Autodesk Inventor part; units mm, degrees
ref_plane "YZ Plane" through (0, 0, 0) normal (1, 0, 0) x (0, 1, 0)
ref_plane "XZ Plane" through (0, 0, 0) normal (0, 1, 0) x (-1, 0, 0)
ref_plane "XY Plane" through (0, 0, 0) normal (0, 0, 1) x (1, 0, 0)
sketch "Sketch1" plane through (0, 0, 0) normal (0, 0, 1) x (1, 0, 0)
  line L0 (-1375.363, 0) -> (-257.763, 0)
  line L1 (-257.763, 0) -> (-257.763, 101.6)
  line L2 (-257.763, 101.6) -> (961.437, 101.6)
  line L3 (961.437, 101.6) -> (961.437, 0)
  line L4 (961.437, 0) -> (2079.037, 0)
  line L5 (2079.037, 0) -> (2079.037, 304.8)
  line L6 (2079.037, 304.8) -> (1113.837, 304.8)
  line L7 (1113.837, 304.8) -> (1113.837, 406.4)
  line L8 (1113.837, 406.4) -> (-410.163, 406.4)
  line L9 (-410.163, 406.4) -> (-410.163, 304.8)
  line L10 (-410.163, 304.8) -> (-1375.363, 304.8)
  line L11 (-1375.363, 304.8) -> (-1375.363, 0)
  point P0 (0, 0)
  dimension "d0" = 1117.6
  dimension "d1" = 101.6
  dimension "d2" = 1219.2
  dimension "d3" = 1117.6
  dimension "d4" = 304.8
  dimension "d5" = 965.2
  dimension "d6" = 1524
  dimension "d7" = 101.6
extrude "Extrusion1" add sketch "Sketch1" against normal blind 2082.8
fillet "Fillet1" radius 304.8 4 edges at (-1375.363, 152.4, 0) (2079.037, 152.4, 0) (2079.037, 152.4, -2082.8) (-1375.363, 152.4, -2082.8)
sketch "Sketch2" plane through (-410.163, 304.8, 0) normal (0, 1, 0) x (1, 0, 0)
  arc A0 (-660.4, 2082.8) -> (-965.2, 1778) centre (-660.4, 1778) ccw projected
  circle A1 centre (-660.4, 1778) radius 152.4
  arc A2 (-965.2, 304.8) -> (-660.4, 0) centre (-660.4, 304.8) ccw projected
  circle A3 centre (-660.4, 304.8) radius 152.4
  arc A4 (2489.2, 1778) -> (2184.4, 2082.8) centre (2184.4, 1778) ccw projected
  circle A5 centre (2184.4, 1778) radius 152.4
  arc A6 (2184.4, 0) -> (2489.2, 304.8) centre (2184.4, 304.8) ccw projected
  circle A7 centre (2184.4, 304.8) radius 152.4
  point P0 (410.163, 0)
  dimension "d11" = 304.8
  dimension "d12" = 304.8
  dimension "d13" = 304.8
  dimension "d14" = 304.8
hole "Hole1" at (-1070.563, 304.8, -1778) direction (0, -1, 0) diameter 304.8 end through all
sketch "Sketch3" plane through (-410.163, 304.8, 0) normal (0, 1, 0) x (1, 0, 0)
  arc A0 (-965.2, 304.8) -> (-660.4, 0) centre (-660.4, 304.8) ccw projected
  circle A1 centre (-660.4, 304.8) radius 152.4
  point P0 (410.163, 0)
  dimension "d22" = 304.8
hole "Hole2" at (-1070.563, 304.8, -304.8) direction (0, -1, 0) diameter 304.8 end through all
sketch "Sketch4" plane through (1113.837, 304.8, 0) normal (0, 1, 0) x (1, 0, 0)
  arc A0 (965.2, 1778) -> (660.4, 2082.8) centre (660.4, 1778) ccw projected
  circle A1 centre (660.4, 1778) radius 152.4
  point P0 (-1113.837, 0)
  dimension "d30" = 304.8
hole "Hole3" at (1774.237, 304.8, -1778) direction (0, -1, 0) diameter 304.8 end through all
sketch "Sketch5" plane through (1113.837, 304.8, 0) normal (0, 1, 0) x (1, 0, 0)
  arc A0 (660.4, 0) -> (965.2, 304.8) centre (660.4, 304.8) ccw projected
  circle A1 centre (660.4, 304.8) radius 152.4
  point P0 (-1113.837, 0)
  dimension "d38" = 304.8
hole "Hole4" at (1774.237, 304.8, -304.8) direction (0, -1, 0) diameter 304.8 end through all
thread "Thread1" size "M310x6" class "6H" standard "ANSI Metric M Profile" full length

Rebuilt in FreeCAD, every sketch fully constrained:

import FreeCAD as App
import Part
import Sketcher

V = App.Vector
Q = App.Units.Quantity


def edges_at(feature, points):
    """Names of the edges that pass closest to the given points."""
    edges = feature.Shape.Edges
    near = lambda p: min(range(len(edges)), key=lambda i: edges[i].distToShape(Part.Vertex(*p))[0])
    return sorted({f"Edge{near(p) + 1}" for p in points})


def add_polygon(sketch, points):
    """Adds a closed chain of lines whose ends are joined by coincident constraints."""
    first, n = sketch.GeometryCount, len(points)
    for a, b in zip(points, points[1:] + points[:1]):
        sketch.addGeometry(Part.LineSegment(App.Vector(*a, 0), App.Vector(*b, 0)), False)
    for i in range(n):
        sketch.addConstraint(Sketcher.Constraint("Coincident", first + i, 2, first + (i + 1) % n, 1))

doc = App.newDocument("Part")
body = doc.addObject("PartDesign::Body", "Body")

sketch1 = body.newObject("Sketcher::SketchObject", "Sketch")
sketch1.AttachmentSupport = (doc.getObject("XY_Plane"), [""])
sketch1.MapMode = "FlatFace"
add_polygon(sketch1, [(-1375, 305), (-1375, 0), (-258, 0), (-258, 102), (961, 102), (961, 0), (2079, 0), (2079, 305), (1114, 305), (1114, 406), (-410, 406), (-410, 305)])
sketch1.addConstraint(Sketcher.Constraint("Vertical", 0))
sketch1.addConstraint(Sketcher.Constraint("Horizontal", 1))
sketch1.addConstraint(Sketcher.Constraint("Vertical", 2))
sketch1.addConstraint(Sketcher.Constraint("Horizontal", 3))
sketch1.addConstraint(Sketcher.Constraint("Vertical", 4))
sketch1.addConstraint(Sketcher.Constraint("Horizontal", 5))
sketch1.addConstraint(Sketcher.Constraint("Vertical", 6))
sketch1.addConstraint(Sketcher.Constraint("Horizontal", 7))
sketch1.addConstraint(Sketcher.Constraint("Vertical", 8))
sketch1.addConstraint(Sketcher.Constraint("Horizontal", 9))
sketch1.addConstraint(Sketcher.Constraint("Vertical", 10))
sketch1.addConstraint(Sketcher.Constraint("Horizontal", 11))
sketch1.addConstraint(Sketcher.Constraint("PointOnObject", 0, 2, -1))
sketch1.addConstraint(Sketcher.Constraint("PointOnObject", 4, 2, -1))
sketch1.addConstraint(Sketcher.Constraint("Horizontal", 7, 2, 10, 2))
sketch1.addConstraint(Sketcher.Constraint("Equal", 1, 5))
sketch1.addConstraint(Sketcher.Constraint("Equal", 7, 11))
sketch1.addConstraint(Sketcher.Constraint("Equal", 4, 8))
sketch1.addConstraint(Sketcher.Constraint("DistanceX", 1, 1, 1, 2, Q("44 in")))
sketch1.addConstraint(Sketcher.Constraint("DistanceX", 3, 1, 3, 2, Q("48 in")))
sketch1.addConstraint(Sketcher.Constraint("DistanceX", 7, 2, 7, 1, Q("38 in")))
sketch1.addConstraint(Sketcher.Constraint("DistanceY", 0, 2, 0, 1, Q("12 in")))
sketch1.addConstraint(Sketcher.Constraint("DistanceY", 2, 1, 2, 2, Q("4 in")))
sketch1.addConstraint(Sketcher.Constraint("DistanceX", 0, 2, -1, 1, Q("1375.363 mm")))
pad1 = body.newObject("PartDesign::Pad", "Pad")
pad1.Profile = sketch1
pad1.Length = Q("82 in")
pad1.Reversed = True
doc.recompute()

fillet = body.newObject("PartDesign::Fillet", "Fillet")
fillet.Base = (pad1, edges_at(pad1, [
    (-1375.363, 152.4, 0),
    (2079.037, 152.4, 0),
    (2079.037, 152.4, -2082.8),
    (-1375.363, 152.4, -2082.8),
]))
fillet.Radius = Q("12 in")

sketch2 = body.newObject("Sketcher::SketchObject", "Sketch001")
sketch2.AttachmentSupport = (doc.getObject("XZ_Plane"), [""])
sketch2.MapMode = "FlatFace"
sketch2.AttachmentOffset = App.Placement(V(0, 0, -12 * 25.4), App.Rotation())
sketch2.addGeometry(Part.Circle(V(-1071, -1778, 0), V(0, 0, 1), 152), False)
sketch2.addConstraint(Sketcher.Constraint("Diameter", 0, Q("12 in")))
sketch2.addConstraint(Sketcher.Constraint("DistanceY", 0, 3, -1, 1, Q("70 in")))
sketch2.addConstraint(Sketcher.Constraint("DistanceX", 0, 3, -1, 1, Q("1070.563 mm")))
doc.recompute()
hole = body.newObject("PartDesign::Hole", "Hole")
hole.Profile = sketch2
hole.ThreadType = "None"
hole.Diameter = Q("12 in")
hole.DepthType = "ThroughAll"
hole.Reversed = True

sketch3 = body.newObject("Sketcher::SketchObject", "Sketch002")
sketch3.AttachmentSupport = (doc.getObject("XZ_Plane"), [""])
sketch3.MapMode = "FlatFace"
sketch3.AttachmentOffset = App.Placement(V(0, 0, -12 * 25.4), App.Rotation())
sketch3.addGeometry(Part.Circle(V(-1071, -305, 0), V(0, 0, 1), 152), False)
sketch3.addConstraint(Sketcher.Constraint("Diameter", 0, Q("12 in")))
sketch3.addConstraint(Sketcher.Constraint("DistanceY", 0, 3, -1, 1, Q("12 in")))
sketch3.addConstraint(Sketcher.Constraint("DistanceX", 0, 3, -1, 1, Q("1070.563 mm")))
doc.recompute()
hole2 = body.newObject("PartDesign::Hole", "Hole001")
hole2.Profile = sketch3
hole2.ThreadType = "None"
hole2.Diameter = Q("12 in")
hole2.DepthType = "ThroughAll"
hole2.Reversed = True

sketch4 = body.newObject("Sketcher::SketchObject", "Sketch003")
sketch4.AttachmentSupport = (doc.getObject("XZ_Plane"), [""])
sketch4.MapMode = "FlatFace"
sketch4.AttachmentOffset = App.Placement(V(0, 0, -12 * 25.4), App.Rotation())
sketch4.addGeometry(Part.Circle(V(1774, -1778, 0), V(0, 0, 1), 152), False)
sketch4.addConstraint(Sketcher.Constraint("Diameter", 0, Q("12 in")))
sketch4.addConstraint(Sketcher.Constraint("DistanceY", 0, 3, -1, 1, Q("70 in")))
sketch4.addConstraint(Sketcher.Constraint("DistanceX", -1, 1, 0, 3, Q("1774.237 mm")))
doc.recompute()
hole3 = body.newObject("PartDesign::Hole", "Hole002")
hole3.Profile = sketch4
hole3.ThreadType = "None"
hole3.Diameter = Q("12 in")
hole3.DepthType = "ThroughAll"
hole3.Reversed = True

sketch5 = body.newObject("Sketcher::SketchObject", "Sketch004")
sketch5.AttachmentSupport = (doc.getObject("XZ_Plane"), [""])
sketch5.MapMode = "FlatFace"
sketch5.AttachmentOffset = App.Placement(V(0, 0, -12 * 25.4), App.Rotation())
sketch5.addGeometry(Part.Circle(V(1774, -305, 0), V(0, 0, 1), 152), False)
sketch5.addConstraint(Sketcher.Constraint("Diameter", 0, Q("12 in")))
sketch5.addConstraint(Sketcher.Constraint("DistanceY", 0, 3, -1, 1, Q("12 in")))
sketch5.addConstraint(Sketcher.Constraint("DistanceX", -1, 1, 0, 3, Q("1774.237 mm")))
doc.recompute()
hole4 = body.newObject("PartDesign::Hole", "Hole003")
hole4.Profile = sketch5
hole4.ThreadType = "None"
hole4.Diameter = Q("12 in")
hole4.DepthType = "ThroughAll"
hole4.Reversed = True

doc.recompute()
